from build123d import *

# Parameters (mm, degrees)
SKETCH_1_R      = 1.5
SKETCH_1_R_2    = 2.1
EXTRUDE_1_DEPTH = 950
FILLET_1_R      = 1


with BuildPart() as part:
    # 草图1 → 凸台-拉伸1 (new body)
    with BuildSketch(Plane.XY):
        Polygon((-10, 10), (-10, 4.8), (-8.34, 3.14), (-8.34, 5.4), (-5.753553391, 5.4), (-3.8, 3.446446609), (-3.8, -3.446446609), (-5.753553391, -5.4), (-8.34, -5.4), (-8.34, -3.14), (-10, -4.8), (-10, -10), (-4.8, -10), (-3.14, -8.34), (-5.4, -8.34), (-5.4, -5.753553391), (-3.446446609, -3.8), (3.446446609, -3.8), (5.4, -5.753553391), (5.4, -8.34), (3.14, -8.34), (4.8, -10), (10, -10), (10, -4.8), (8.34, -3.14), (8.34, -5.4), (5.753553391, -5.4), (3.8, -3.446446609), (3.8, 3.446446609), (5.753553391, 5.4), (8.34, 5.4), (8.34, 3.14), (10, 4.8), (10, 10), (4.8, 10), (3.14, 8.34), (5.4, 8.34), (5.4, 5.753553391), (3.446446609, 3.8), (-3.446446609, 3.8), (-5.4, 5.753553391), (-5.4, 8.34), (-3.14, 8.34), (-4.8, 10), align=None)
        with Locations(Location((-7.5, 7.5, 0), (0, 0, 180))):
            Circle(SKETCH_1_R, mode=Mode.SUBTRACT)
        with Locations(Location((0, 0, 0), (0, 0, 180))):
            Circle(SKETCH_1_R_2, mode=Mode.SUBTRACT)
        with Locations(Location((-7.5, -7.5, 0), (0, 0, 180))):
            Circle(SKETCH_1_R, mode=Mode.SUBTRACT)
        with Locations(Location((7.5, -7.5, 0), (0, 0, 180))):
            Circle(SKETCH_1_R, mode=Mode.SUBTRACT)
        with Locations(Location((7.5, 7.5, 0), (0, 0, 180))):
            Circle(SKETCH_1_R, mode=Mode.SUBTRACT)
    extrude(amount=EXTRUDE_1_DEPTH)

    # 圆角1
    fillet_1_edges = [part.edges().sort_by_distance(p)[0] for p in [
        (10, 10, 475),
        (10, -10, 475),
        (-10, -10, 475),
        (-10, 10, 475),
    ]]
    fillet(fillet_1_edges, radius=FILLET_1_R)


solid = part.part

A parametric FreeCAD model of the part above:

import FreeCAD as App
import Part
import Sketcher
from FreeCAD import Vector
Q = App.Units.Quantity


def edges_at(feature, points):
    """Names of the edges that pass closest to the given points."""
    edges = feature.Shape.Edges
    near = lambda p: min(range(len(edges)), key=lambda i: edges[i].distToShape(Part.Vertex(*p))[0])
    return sorted({f"Edge{near(p) + 1}" for p in points})


def add_polygon(sketch, points):
    """Adds a closed chain of lines whose ends are joined by coincident constraints."""
    first, n = sketch.GeometryCount, len(points)
    for a, b in zip(points, points[1:] + points[:1]):
        sketch.addGeometry(Part.LineSegment(App.Vector(*a, 0), App.Vector(*b, 0)), False)
    for i in range(n):
        sketch.addConstraint(Sketcher.Constraint("Coincident", first + i, 2, first + (i + 1) % n, 1))

doc = App.newDocument("Part")
body = doc.addObject("PartDesign::Body", "Body")

sketch1 = body.newObject("Sketcher::SketchObject", "Sketch")
sketch1.AttachmentSupport = (doc.getObject("XY_Plane"), [""])
sketch1.MapMode = "FlatFace"
add_polygon(sketch1, [(-10, 10), (-10, 4.8), (-8.3, 3.1), (-8.3, 5.4), (-5.8, 5.4), (-3.8, 3.4), (-3.8, -3.4), (-5.8, -5.4), (-8.3, -5.4), (-8.3, -3.1), (-10, -4.8), (-10, -10), (-4.8, -10), (-3.1, -8.3), (-5.4, -8.3), (-5.4, -5.8), (-3.4, -3.8), (3.4, -3.8), (5.4, -5.8), (5.4, -8.3), (3.1, -8.3), (4.8, -10), (10, -10), (10, -4.8), (8.3, -3.1), (8.3, -5.4), (5.8, -5.4), (3.8, -3.4), (3.8, 3.4), (5.8, 5.4), (8.3, 5.4), (8.3, 3.1), (10, 4.8), (10, 10), (4.8, 10), (3.1, 8.3), (5.4, 8.3), (5.4, 5.8), (3.4, 3.8), (-3.4, 3.8), (-5.4, 5.8), (-5.4, 8.3), (-3.1, 8.3), (-4.8, 10)])
sketch1.addGeometry(Part.Circle(Vector(-7.5, -7.5, 0), Vector(0, 0, 1), 1.5), False)
sketch1.addGeometry(Part.Circle(Vector(7.5, -7.5, 0), Vector(0, 0, 1), 1.5), False)
sketch1.addGeometry(Part.Circle(Vector(-7.5, 7.5, 0), Vector(0, 0, 1), 1.5), False)
sketch1.addGeometry(Part.Circle(Vector(0, 0, 0), Vector(0, 0, 1), 2.1), False)
sketch1.addGeometry(Part.Circle(Vector(7.5, 7.5, 0), Vector(0, 0, 1), 1.5), False)
sketch1.addConstraint([
    Sketcher.Constraint("Vertical", 0),
    Sketcher.Constraint("Vertical", 2),
    Sketcher.Constraint("Horizontal", 3),
    Sketcher.Constraint("Vertical", 5),
    Sketcher.Constraint("Horizontal", 7),
    Sketcher.Constraint("Vertical", 8),
    Sketcher.Constraint("Vertical", 10),
    Sketcher.Constraint("Horizontal", 11),
    Sketcher.Constraint("Horizontal", 13),
    Sketcher.Constraint("Vertical", 14),
    Sketcher.Constraint("Horizontal", 16),
    Sketcher.Constraint("Vertical", 18),
    Sketcher.Constraint("Horizontal", 19),
    Sketcher.Constraint("Horizontal", 21),
    Sketcher.Constraint("Vertical", 22),
    Sketcher.Constraint("Vertical", 24),
    Sketcher.Constraint("Horizontal", 25),
    Sketcher.Constraint("Vertical", 27),
    Sketcher.Constraint("Horizontal", 29),
    Sketcher.Constraint("Vertical", 30),
    Sketcher.Constraint("Vertical", 32),
    Sketcher.Constraint("Horizontal", 33),
    Sketcher.Constraint("Horizontal", 35),
    Sketcher.Constraint("Vertical", 36),
    Sketcher.Constraint("Horizontal", 38),
    Sketcher.Constraint("Vertical", 40),
    Sketcher.Constraint("Horizontal", 41),
    Sketcher.Constraint("Horizontal", 43),
    Sketcher.Constraint("Coincident", 47, 3, -1, 1),
    Sketcher.Constraint("Equal", 44, 45),
    Sketcher.Constraint("Equal", 45, 46),
    Sketcher.Constraint("Equal", 46, 48),
    Sketcher.Constraint("Symmetric", 45, 3, 46, 3, -1, 1),
    Sketcher.Constraint("Symmetric", 44, 3, 48, 3, -1, 1),
    Sketcher.Constraint("Symmetric", 0, 2, 22, 2, -1, 1),
    Sketcher.Constraint("Symmetric", 1, 2, 23, 2, -1, 1),
    Sketcher.Constraint("Symmetric", 3, 2, 25, 2, -1, 1),
    Sketcher.Constraint("Symmetric", 4, 2, 26, 2, -1, 1),
    Sketcher.Constraint("Symmetric", 6, 2, 28, 2, -1, 1),
    Sketcher.Constraint("Symmetric", 8, 2, 30, 2, -1, 1),
    Sketcher.Constraint("Symmetric", 9, 2, 31, 2, -1, 1),
    Sketcher.Constraint("Symmetric", 11, 2, 33, 2, -1, 1),
    Sketcher.Constraint("Symmetric", 12, 2, 34, 2, -1, 1),
    Sketcher.Constraint("Symmetric", 14, 2, 36, 2, -1, 1),
    Sketcher.Constraint("Symmetric", 15, 2, 37, 2, -1, 1),
    Sketcher.Constraint("Symmetric", 17, 2, 39, 2, -1, 1),
    Sketcher.Constraint("Symmetric", 19, 2, 41, 2, -1, 1),
    Sketcher.Constraint("Symmetric", 20, 2, 42, 2, -1, 1),
    Sketcher.Constraint("Symmetric", 44, 3, 45, 3, -2),
    Sketcher.Constraint("Symmetric", 14, 2, 17, 2, -2),
    Sketcher.Constraint("Symmetric", 12, 2, 19, 2, -2),
    Sketcher.Constraint("Symmetric", 11, 2, 20, 2, -2),
    Sketcher.Constraint("Symmetric", 9, 2, 22, 2, -2),
    Sketcher.Constraint("Symmetric", 8, 2, 23, 2, -2),
    Sketcher.Constraint("Symmetric", 6, 2, 25, 2, -2),
    Sketcher.Constraint("Parallel", 1, 4),
    Sketcher.Constraint("Perpendicular", 4, 6),
    Sketcher.Constraint("Parallel", 6, 9),
    Sketcher.Constraint("Parallel", 9, 12),
    Sketcher.Constraint("Parallel", 12, 15),
    Sketcher.Constraint("Perpendicular", 15, 17),
    Sketcher.Constraint("Perpendicular", 26, 28),
    Sketcher.Constraint("Perpendicular", 37, 39),
    Sketcher.Constraint("Equal", 43, 0),
    Sketcher.Constraint("Equal", 41, 2),
    Sketcher.Constraint("Equal", 38, 5),
    Sketcher.Constraint("Equal", 29, 14),
    Sketcher.Constraint("Equal", 9, 12),
    Sketcher.Constraint("Equal", 6, 15),
    Sketcher.Constraint("Diameter", 44, Q("3 mm")),
    Sketcher.Constraint("Diameter", 47, Q("4.2 mm")),
    Sketcher.Constraint("DistanceX", 11, 1, 11, 2, Q("5.2 mm")),
    Sketcher.Constraint("DistanceX", 0, 2, -1, 1, Q("10 mm")),
    Sketcher.Constraint("DistanceX", 44, 3, 45, 3, Q("15 mm")),
    Sketcher.Constraint("DistanceY", 44, 3, 46, 3, Q("15 mm")),
    Sketcher.Constraint("DistanceX", 11, 2, 5, 2, Q("1 mm")),
    Sketcher.Constraint("DistanceX", 13, 2, 13, 1, Q("2.26 mm")),
    Sketcher.Constraint("DistanceY", -1, 1, 2, 2, Q("5.4 mm")),
    Sketcher.Constraint("Distance", 4, Q("2.762742 mm")),
])
pad1 = body.newObject("PartDesign::Pad", "Pad")
pad1.Profile = sketch1
pad1.Length = 950
doc.recompute()

fillet = body.newObject("PartDesign::Fillet", "Fillet")
fillet.Base = (pad1, edges_at(pad1, [
    (10, 10, 475),
    (10, -10, 475),
    (-10, -10, 475),
    (-10, 10, 475),
]))
fillet.Radius = 1

doc.recompute()
